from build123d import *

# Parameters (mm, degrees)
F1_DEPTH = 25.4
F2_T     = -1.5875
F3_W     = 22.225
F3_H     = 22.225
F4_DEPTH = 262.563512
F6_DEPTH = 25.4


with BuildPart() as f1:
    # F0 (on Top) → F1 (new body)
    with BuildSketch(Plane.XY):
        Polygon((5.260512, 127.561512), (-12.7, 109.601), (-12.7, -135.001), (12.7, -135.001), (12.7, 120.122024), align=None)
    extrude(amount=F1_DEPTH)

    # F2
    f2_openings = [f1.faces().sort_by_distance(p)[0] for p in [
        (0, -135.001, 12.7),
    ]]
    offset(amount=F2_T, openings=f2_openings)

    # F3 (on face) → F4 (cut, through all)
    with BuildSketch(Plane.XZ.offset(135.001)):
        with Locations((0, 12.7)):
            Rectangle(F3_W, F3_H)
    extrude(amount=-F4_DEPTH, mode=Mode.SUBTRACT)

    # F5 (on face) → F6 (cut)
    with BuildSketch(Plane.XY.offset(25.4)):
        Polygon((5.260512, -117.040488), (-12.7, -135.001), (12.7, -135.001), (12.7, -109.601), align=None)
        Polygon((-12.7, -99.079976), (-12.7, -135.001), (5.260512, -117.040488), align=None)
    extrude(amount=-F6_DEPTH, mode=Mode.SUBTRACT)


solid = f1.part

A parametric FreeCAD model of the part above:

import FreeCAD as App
import Part
import Sketcher

V = App.Vector
Q = App.Units.Quantity


def faces_at(feature, points):
    """Names of the faces that lie closest to the given points."""
    faces = feature.Shape.Faces
    near = lambda p: min(range(len(faces)), key=lambda i: faces[i].distToShape(Part.Vertex(*p))[0])
    return sorted({f"Face{near(p) + 1}" for p in points})

doc = App.newDocument("Part")
body = doc.addObject("PartDesign::Body", "Body")

sketch1 = body.newObject("Sketcher::SketchObject", "Sketch")
sketch1.AttachmentSupport = (doc.getObject("XY_Plane"), [""])
sketch1.MapMode = "FlatFace"
sketch1.addGeometry(Part.LineSegment(V(5, 128, 0), V(-13, 110, 0)), False)
sketch1.addGeometry(Part.LineSegment(V(-13, 110, 0), V(-13, -135, 0)), False)
sketch1.addGeometry(Part.LineSegment(V(-13, -135, 0), V(13, -135, 0)), False)
sketch1.addGeometry(Part.LineSegment(V(13, -135, 0), V(13, 120, 0)), False)
sketch1.addGeometry(Part.LineSegment(V(13, 120, 0), V(5, 128, 0)), False)
sketch1.addConstraint(Sketcher.Constraint("Coincident", 0, 2, 1, 1))
sketch1.addConstraint(Sketcher.Constraint("Coincident", 1, 2, 2, 1))
sketch1.addConstraint(Sketcher.Constraint("Coincident", 2, 2, 3, 1))
sketch1.addConstraint(Sketcher.Constraint("Coincident", 3, 2, 4, 1))
sketch1.addConstraint(Sketcher.Constraint("Coincident", 4, 2, 0, 1))
sketch1.addConstraint(Sketcher.Constraint("Vertical", 1))
sketch1.addConstraint(Sketcher.Constraint("Horizontal", 2))
sketch1.addConstraint(Sketcher.Constraint("Vertical", 3))
sketch1.addConstraint(Sketcher.Constraint("Perpendicular", 0, 4))
sketch1.addConstraint(Sketcher.Constraint("DistanceX", 2, 1, 2, 2, Q("1 in")))
sketch1.addConstraint(Sketcher.Constraint("Distance", 0, Q("1 in")))
sketch1.addConstraint(Sketcher.Constraint("Angle", 0, Q("-135 deg")))
sketch1.addConstraint(Sketcher.Constraint("DistanceY", 1, 2, 1, 1, Q("9.63 in")))
sketch1.addConstraint(Sketcher.Constraint("DistanceX", 0, 2, -1, 1, Q("0.5 in")))
sketch1.addConstraint(Sketcher.Constraint("DistanceY", -1, 1, 0, 2, Q("4.315 in")))
pad1 = body.newObject("PartDesign::Pad", "Pad")
pad1.Profile = sketch1
pad1.Length = Q("1 in")
doc.recompute()

thickness = body.newObject("PartDesign::Thickness", "Thickness")
thickness.Base = (pad1, faces_at(pad1, [(0, -135.001, 12.7)]))
thickness.Value = Q("0.0625 in")
thickness.Reversed = True
thickness.Join = "Arc"

sketch2 = body.newObject("Sketcher::SketchObject", "Sketch001")
sketch2.AttachmentSupport = (doc.getObject("XZ_Plane"), [""])
sketch2.MapMode = "FlatFace"
sketch2.AttachmentOffset = App.Placement(V(0, 0, 5.315 * 25.4), App.Rotation())
sketch2.addGeometry(Part.LineSegment(V(-11, 24, 0), V(-11, 2, 0)), False)
sketch2.addGeometry(Part.LineSegment(V(-11, 2, 0), V(11, 2, 0)), False)
sketch2.addGeometry(Part.LineSegment(V(11, 2, 0), V(11, 24, 0)), False)
sketch2.addGeometry(Part.LineSegment(V(11, 24, 0), V(-11, 24, 0)), False)
sketch2.addConstraint(Sketcher.Constraint("Coincident", 0, 2, 1, 1))
sketch2.addConstraint(Sketcher.Constraint("Coincident", 1, 2, 2, 1))
sketch2.addConstraint(Sketcher.Constraint("Coincident", 2, 2, 3, 1))
sketch2.addConstraint(Sketcher.Constraint("Coincident", 3, 2, 0, 1))
sketch2.addConstraint(Sketcher.Constraint("Vertical", 0))
sketch2.addConstraint(Sketcher.Constraint("Horizontal", 1))
sketch2.addConstraint(Sketcher.Constraint("Vertical", 2))
sketch2.addConstraint(Sketcher.Constraint("Horizontal", 3))
sketch2.addConstraint(Sketcher.Constraint("Equal", 3, 0))
sketch2.addConstraint(Sketcher.Constraint("DistanceX", 1, 1, 1, 2, Q("0.875 in")))
sketch2.addConstraint(Sketcher.Constraint("DistanceX", 0, 2, -1, 1, Q("0.4375 in")))
sketch2.addConstraint(Sketcher.Constraint("DistanceY", -1, 1, 0, 2, Q("0.0625 in")))
pocket1 = body.newObject("PartDesign::Pocket", "Pocket")
pocket1.Profile = sketch2
pocket1.Type = "ThroughAll"

sketch3 = body.newObject("Sketcher::SketchObject", "Sketch002")
sketch3.AttachmentSupport = (doc.getObject("XY_Plane"), [""])
sketch3.MapMode = "FlatFace"
sketch3.AttachmentOffset = App.Placement(V(0, 0, 1 * 25.4), App.Rotation())
sketch3.addGeometry(Part.LineSegment(V(-13, -135, 0), V(13, -135, 0)), False)
sketch3.addGeometry(Part.LineSegment(V(13, -135, 0), V(13, -110, 0)), False)
sketch3.addGeometry(Part.LineSegment(V(13, -110, 0), V(5, -117, 0)), False)
sketch3.addGeometry(Part.LineSegment(V(5, -117, 0), V(-13, -99, 0)), False)
sketch3.addGeometry(Part.LineSegment(V(-13, -99, 0), V(-13, -135, 0)), False)
sketch3.addConstraint(Sketcher.Constraint("Coincident", 0, 2, 1, 1))
sketch3.addConstraint(Sketcher.Constraint("Coincident", 1, 2, 2, 1))
sketch3.addConstraint(Sketcher.Constraint("Coincident", 2, 2, 3, 1))
sketch3.addConstraint(Sketcher.Constraint("Coincident", 3, 2, 4, 1))
sketch3.addConstraint(Sketcher.Constraint("Coincident", 4, 2, 0, 1))
sketch3.addConstraint(Sketcher.Constraint("Horizontal", 0))
sketch3.addConstraint(Sketcher.Constraint("Vertical", 1))
sketch3.addConstraint(Sketcher.Constraint("Vertical", 4))
sketch3.addConstraint(Sketcher.Constraint("Perpendicular", 2, 3))
sketch3.addConstraint(Sketcher.Constraint("Equal", 0, 1))
sketch3.addConstraint(Sketcher.Constraint("DistanceX", 0, 1, 0, 2, Q("1 in")))
sketch3.addConstraint(Sketcher.Constraint("Distance", 3, Q("1 in")))
sketch3.addConstraint(Sketcher.Constraint("Angle", 2, Q("-135 deg")))
sketch3.addConstraint(Sketcher.Constraint("DistanceX", -1, 1, 0, 2, Q("0.5 in")))
sketch3.addConstraint(Sketcher.Constraint("DistanceY", 0, 2, -1, 1, Q("5.315 in")))
pocket2 = body.newObject("PartDesign::Pocket", "Pocket001")
pocket2.Profile = sketch3
pocket2.Length = Q("1 in")

doc.recompute()
